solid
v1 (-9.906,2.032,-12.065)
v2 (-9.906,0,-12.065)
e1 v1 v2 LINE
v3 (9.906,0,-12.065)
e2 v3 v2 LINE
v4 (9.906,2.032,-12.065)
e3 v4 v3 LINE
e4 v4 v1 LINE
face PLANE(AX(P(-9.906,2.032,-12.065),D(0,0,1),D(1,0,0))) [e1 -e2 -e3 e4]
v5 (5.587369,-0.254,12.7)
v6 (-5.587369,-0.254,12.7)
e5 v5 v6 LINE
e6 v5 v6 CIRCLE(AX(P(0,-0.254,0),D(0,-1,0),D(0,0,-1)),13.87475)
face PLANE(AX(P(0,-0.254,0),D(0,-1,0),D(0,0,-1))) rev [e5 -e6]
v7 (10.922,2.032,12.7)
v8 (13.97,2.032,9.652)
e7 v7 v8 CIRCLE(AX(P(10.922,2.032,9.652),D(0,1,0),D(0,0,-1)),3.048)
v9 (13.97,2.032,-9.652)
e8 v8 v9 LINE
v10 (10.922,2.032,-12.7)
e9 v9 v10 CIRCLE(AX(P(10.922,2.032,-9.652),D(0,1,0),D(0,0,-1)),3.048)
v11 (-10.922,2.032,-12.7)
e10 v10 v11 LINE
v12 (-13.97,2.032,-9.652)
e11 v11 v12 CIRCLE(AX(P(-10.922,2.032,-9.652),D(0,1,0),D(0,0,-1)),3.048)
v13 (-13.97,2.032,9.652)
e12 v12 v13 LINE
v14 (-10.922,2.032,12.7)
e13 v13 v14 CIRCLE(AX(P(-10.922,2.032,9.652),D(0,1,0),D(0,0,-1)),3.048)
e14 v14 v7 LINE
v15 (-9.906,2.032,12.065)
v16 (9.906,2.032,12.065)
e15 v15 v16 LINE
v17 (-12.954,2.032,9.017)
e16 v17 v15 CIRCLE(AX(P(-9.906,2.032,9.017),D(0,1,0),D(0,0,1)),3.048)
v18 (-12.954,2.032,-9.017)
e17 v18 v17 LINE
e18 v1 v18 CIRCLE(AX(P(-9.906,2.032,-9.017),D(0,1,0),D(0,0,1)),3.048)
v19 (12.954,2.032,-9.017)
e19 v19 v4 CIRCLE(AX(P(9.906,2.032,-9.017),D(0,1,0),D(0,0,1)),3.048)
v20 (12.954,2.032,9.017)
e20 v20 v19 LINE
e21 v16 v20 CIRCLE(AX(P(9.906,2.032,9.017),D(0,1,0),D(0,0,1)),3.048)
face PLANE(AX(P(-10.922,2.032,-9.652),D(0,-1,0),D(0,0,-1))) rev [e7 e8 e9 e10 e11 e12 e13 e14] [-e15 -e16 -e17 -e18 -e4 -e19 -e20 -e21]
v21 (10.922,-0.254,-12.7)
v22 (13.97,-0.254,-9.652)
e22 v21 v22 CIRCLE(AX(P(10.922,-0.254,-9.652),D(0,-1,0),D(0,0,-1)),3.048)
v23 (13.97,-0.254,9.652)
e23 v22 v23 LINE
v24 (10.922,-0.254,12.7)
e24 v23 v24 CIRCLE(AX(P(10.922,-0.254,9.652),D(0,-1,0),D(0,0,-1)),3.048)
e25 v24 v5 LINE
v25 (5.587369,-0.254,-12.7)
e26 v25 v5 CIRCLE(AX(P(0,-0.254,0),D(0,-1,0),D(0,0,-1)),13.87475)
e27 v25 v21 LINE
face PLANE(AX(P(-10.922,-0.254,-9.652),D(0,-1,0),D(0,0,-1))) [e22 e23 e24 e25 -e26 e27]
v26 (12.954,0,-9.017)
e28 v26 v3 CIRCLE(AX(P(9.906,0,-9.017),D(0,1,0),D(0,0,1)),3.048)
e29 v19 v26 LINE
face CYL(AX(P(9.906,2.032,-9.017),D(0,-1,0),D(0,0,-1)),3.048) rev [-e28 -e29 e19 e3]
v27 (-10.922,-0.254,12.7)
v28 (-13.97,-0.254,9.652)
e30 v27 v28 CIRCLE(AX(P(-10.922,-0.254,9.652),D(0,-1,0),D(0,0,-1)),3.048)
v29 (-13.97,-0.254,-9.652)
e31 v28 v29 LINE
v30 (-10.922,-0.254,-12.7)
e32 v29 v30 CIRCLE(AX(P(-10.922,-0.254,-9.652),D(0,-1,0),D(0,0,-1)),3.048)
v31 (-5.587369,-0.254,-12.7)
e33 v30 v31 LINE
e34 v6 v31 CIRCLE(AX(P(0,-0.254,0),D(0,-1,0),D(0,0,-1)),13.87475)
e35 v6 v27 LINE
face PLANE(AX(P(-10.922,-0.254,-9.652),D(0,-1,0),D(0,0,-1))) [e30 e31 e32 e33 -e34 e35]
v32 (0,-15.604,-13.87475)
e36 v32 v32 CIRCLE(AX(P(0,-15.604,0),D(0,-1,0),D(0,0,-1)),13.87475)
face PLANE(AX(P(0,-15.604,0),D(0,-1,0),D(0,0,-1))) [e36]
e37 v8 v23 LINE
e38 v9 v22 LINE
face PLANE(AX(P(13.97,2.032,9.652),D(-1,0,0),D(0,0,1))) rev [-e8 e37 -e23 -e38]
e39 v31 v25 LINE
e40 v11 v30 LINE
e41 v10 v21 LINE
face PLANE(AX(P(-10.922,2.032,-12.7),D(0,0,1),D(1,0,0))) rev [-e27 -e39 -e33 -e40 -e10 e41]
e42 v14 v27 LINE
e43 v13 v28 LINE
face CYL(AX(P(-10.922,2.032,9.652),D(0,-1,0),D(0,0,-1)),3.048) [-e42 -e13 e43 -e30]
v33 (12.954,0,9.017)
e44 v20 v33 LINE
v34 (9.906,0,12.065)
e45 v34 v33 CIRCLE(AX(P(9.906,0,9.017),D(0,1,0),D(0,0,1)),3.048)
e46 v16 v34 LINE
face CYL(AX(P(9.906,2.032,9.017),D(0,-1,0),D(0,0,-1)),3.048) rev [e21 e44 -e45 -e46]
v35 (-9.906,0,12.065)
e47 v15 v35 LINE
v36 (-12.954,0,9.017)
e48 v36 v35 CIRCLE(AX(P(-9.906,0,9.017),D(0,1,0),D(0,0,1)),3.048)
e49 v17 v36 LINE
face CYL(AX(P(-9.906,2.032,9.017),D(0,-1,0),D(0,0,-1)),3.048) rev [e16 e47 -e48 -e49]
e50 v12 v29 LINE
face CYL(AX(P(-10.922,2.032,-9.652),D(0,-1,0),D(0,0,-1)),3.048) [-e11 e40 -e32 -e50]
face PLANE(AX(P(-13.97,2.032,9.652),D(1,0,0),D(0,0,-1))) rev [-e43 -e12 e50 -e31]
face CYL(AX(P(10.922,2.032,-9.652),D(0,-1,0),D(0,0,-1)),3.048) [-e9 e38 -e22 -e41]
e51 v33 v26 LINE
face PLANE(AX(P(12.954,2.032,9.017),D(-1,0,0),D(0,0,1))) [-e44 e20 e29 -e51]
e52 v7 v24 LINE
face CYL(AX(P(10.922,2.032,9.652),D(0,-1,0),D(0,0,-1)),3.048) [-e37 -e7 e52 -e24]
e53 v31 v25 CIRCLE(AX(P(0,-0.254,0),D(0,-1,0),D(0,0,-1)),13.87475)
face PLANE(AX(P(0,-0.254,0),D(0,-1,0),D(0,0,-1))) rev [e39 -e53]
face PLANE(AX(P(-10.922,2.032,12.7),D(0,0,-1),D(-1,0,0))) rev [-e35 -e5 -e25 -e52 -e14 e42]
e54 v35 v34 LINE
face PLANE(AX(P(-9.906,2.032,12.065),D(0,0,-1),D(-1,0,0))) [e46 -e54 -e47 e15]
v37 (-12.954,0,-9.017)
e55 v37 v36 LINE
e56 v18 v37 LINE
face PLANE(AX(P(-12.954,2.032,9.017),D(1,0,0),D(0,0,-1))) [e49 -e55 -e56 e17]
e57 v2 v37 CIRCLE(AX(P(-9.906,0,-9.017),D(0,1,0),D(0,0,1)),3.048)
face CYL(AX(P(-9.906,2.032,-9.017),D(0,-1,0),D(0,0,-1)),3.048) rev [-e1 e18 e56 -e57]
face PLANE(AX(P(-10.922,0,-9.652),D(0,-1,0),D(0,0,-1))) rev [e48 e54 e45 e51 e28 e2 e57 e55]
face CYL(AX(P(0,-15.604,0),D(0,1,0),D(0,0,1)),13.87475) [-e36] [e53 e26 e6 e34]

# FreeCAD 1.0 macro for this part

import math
import FreeCAD as App
import Part
import Sketcher
from FreeCAD import Vector
Q = App.Units.Quantity

doc = App.newDocument("Part")
body = doc.addObject("PartDesign::Body", "Body")

# Sketch on XZ plane
sketch1 = body.newObject("Sketcher::SketchObject", "Sketch")
sketch1.AttachmentSupport = (doc.getObject("XZ_Plane"), [""])
sketch1.MapMode = "FlatFace"
sketch1.addGeometry(Part.LineSegment(Vector(-10.922, 12.7, 0), Vector(10.922, 12.7, 0)), False)
sketch1.addGeometry(Part.ArcOfCircle(Part.Circle(Vector(10.922, 9.652, 0), Vector(0, 0, 1), 3.048), math.radians(0), math.radians(90)), False)
sketch1.addGeometry(Part.LineSegment(Vector(13.97, 9.652, 0), Vector(13.97, -9.652, 0)), False)
sketch1.addGeometry(Part.ArcOfCircle(Part.Circle(Vector(10.922, -9.652, 0), Vector(0, 0, 1), 3.048), math.radians(-90), math.radians(0)), False)
sketch1.addGeometry(Part.LineSegment(Vector(10.922, -12.7, 0), Vector(-10.922, -12.7, 0)), False)
sketch1.addGeometry(Part.ArcOfCircle(Part.Circle(Vector(-10.922, -9.652, 0), Vector(0, 0, 1), 3.048), math.radians(180), math.radians(270)), False)
sketch1.addGeometry(Part.LineSegment(Vector(-13.97, -9.652, 0), Vector(-13.97, 9.652, 0)), False)
sketch1.addGeometry(Part.ArcOfCircle(Part.Circle(Vector(-10.922, 9.652, 0), Vector(0, 0, 1), 3.048), math.radians(90), math.radians(180)), False)
sketch1.addGeometry(Part.LineSegment(Vector(9.906, 12.065, 0), Vector(-9.906, 12.065, 0)), False)
sketch1.addGeometry(Part.ArcOfCircle(Part.Circle(Vector(-9.906, 9.017, 0), Vector(0, 0, 1), 3.048), math.radians(90), math.radians(180)), False)
sketch1.addGeometry(Part.LineSegment(Vector(-12.954, 9.017, 0), Vector(-12.954, -9.017, 0)), False)
sketch1.addGeometry(Part.ArcOfCircle(Part.Circle(Vector(-9.906, -9.017, 0), Vector(0, 0, 1), 3.048), math.radians(180), math.radians(270)), False)
sketch1.addGeometry(Part.LineSegment(Vector(-9.906, -12.065, 0), Vector(9.906, -12.065, 0)), False)
sketch1.addGeometry(Part.ArcOfCircle(Part.Circle(Vector(9.906, -9.017, 0), Vector(0, 0, 1), 3.048), math.radians(-90), math.radians(0)), False)
sketch1.addGeometry(Part.LineSegment(Vector(12.954, -9.017, 0), Vector(12.954, 9.017, 0)), False)
sketch1.addGeometry(Part.ArcOfCircle(Part.Circle(Vector(9.906, 9.017, 0), Vector(0, 0, 1), 3.048), math.radians(0), math.radians(90)), False)
sketch1.addConstraint(Sketcher.Constraint("Tangent", 0, 2, 1, 2))
sketch1.addConstraint(Sketcher.Constraint("Tangent", 1, 1, 2, 1))
sketch1.addConstraint(Sketcher.Constraint("Tangent", 2, 2, 3, 2))
sketch1.addConstraint(Sketcher.Constraint("Tangent", 3, 1, 4, 1))
sketch1.addConstraint(Sketcher.Constraint("Tangent", 4, 2, 5, 2))
sketch1.addConstraint(Sketcher.Constraint("Tangent", 5, 1, 6, 1))
sketch1.addConstraint(Sketcher.Constraint("Tangent", 6, 2, 7, 2))
sketch1.addConstraint(Sketcher.Constraint("Tangent", 7, 1, 0, 1))
sketch1.addConstraint(Sketcher.Constraint("Tangent", 8, 2, 9, 1))
sketch1.addConstraint(Sketcher.Constraint("Tangent", 9, 2, 10, 1))
sketch1.addConstraint(Sketcher.Constraint("Tangent", 10, 2, 11, 1))
sketch1.addConstraint(Sketcher.Constraint("Tangent", 11, 2, 12, 1))
sketch1.addConstraint(Sketcher.Constraint("Tangent", 12, 2, 13, 1))
sketch1.addConstraint(Sketcher.Constraint("Tangent", 13, 2, 14, 1))
sketch1.addConstraint(Sketcher.Constraint("Tangent", 14, 2, 15, 1))
sketch1.addConstraint(Sketcher.Constraint("Tangent", 15, 2, 8, 1))
sketch1.addConstraint(Sketcher.Constraint("Horizontal", 0))
sketch1.addConstraint(Sketcher.Constraint("Vertical", 2))
sketch1.addConstraint(Sketcher.Constraint("Horizontal", 4))
sketch1.addConstraint(Sketcher.Constraint("Vertical", 6))
sketch1.addConstraint(Sketcher.Constraint("Horizontal", 8))
sketch1.addConstraint(Sketcher.Constraint("Vertical", 10))
sketch1.addConstraint(Sketcher.Constraint("Horizontal", 12))
sketch1.addConstraint(Sketcher.Constraint("Vertical", 14))
sketch1.addConstraint(Sketcher.Constraint("Equal", 1, 3))
sketch1.addConstraint(Sketcher.Constraint("Equal", 3, 5))
sketch1.addConstraint(Sketcher.Constraint("Equal", 5, 7))
sketch1.addConstraint(Sketcher.Constraint("Equal", 7, 9))
sketch1.addConstraint(Sketcher.Constraint("Equal", 9, 11))
sketch1.addConstraint(Sketcher.Constraint("Equal", 11, 13))
sketch1.addConstraint(Sketcher.Constraint("Equal", 13, 15))
sketch1.addConstraint(Sketcher.Constraint("Symmetric", 1, 3, 5, 3, -1, 1))
sketch1.addConstraint(Sketcher.Constraint("Symmetric", 9, 3, 13, 3, -1, 1))
sketch1.addConstraint(Sketcher.Constraint("Radius", 1, Q("0.12 in")))
sketch1.addConstraint(Sketcher.Constraint("DistanceX", 0, 1, 0, 2, Q("0.86 in")))
sketch1.addConstraint(Sketcher.Constraint("DistanceX", 8, 2, 8, 1, Q("0.78 in")))
sketch1.addConstraint(Sketcher.Constraint("DistanceY", 2, 2, 2, 1, Q("0.76 in")))
sketch1.addConstraint(Sketcher.Constraint("DistanceY", 10, 2, 10, 1, Q("0.71 in")))
pad1 = body.newObject("PartDesign::Pad", "Pad")
pad1.Profile = sketch1
pad1.Length = Q("0.08 in")
pad1.Reversed = True

# Sketch on XZ plane
sketch2 = body.newObject("Sketcher::SketchObject", "Sketch001")
sketch2.AttachmentSupport = (doc.getObject("XZ_Plane"), [""])
sketch2.MapMode = "FlatFace"
sketch2.addGeometry(Part.LineSegment(Vector(-10.922, -12.7, 0), Vector(10.922, -12.7, 0)), False)
sketch2.addGeometry(Part.ArcOfCircle(Part.Circle(Vector(10.922, -9.652, 0), Vector(0, 0, 1), 3.048), math.radians(-90), math.radians(0)), False)
sketch2.addGeometry(Part.LineSegment(Vector(13.97, -9.652, 0), Vector(13.97, 9.652, 0)), False)
sketch2.addGeometry(Part.ArcOfCircle(Part.Circle(Vector(10.922, 9.652, 0), Vector(0, 0, 1), 3.048), math.radians(0), math.radians(90)), False)
sketch2.addGeometry(Part.LineSegment(Vector(10.922, 12.7, 0), Vector(-10.922, 12.7, 0)), False)
sketch2.addGeometry(Part.ArcOfCircle(Part.Circle(Vector(-10.922, 9.652, 0), Vector(0, 0, 1), 3.048), math.radians(90), math.radians(180)), False)
sketch2.addGeometry(Part.LineSegment(Vector(-13.97, 9.652, 0), Vector(-13.97, -9.652, 0)), False)
sketch2.addGeometry(Part.ArcOfCircle(Part.Circle(Vector(-10.922, -9.652, 0), Vector(0, 0, 1), 3.048), math.radians(180), math.radians(270)), False)
sketch2.addConstraint(Sketcher.Constraint("Tangent", 0, 2, 1, 1))
sketch2.addConstraint(Sketcher.Constraint("Tangent", 1, 2, 2, 1))
sketch2.addConstraint(Sketcher.Constraint("Tangent", 2, 2, 3, 1))
sketch2.addConstraint(Sketcher.Constraint("Tangent", 3, 2, 4, 1))
sketch2.addConstraint(Sketcher.Constraint("Tangent", 4, 2, 5, 1))
sketch2.addConstraint(Sketcher.Constraint("Tangent", 5, 2, 6, 1))
sketch2.addConstraint(Sketcher.Constraint("Tangent", 6, 2, 7, 1))
sketch2.addConstraint(Sketcher.Constraint("Tangent", 7, 2, 0, 1))
sketch2.addConstraint(Sketcher.Constraint("Horizontal", 0))
sketch2.addConstraint(Sketcher.Constraint("Vertical", 2))
sketch2.addConstraint(Sketcher.Constraint("Horizontal", 4))
sketch2.addConstraint(Sketcher.Constraint("Vertical", 6))
sketch2.addConstraint(Sketcher.Constraint("Equal", 1, 3))
sketch2.addConstraint(Sketcher.Constraint("Equal", 3, 5))
sketch2.addConstraint(Sketcher.Constraint("Equal", 5, 7))
sketch2.addConstraint(Sketcher.Constraint("Symmetric", 1, 3, 5, 3, -1, 1))
sketch2.addConstraint(Sketcher.Constraint("Radius", 1, Q("0.12 in")))
sketch2.addConstraint(Sketcher.Constraint("DistanceX", 0, 1, 0, 2, Q("0.86 in")))
sketch2.addConstraint(Sketcher.Constraint("DistanceY", 2, 1, 2, 2, Q("0.76 in")))
pad2 = body.newObject("PartDesign::Pad", "Pad001")
pad2.Profile = sketch2
pad2.Length = Q("0.01 in")

# Sketch on XZ plane
sketch3 = body.newObject("Sketcher::SketchObject", "Sketch002")
sketch3.AttachmentSupport = (doc.getObject("XZ_Plane"), [""])
sketch3.MapMode = "FlatFace"
sketch3.AttachmentOffset = App.Placement(Vector(0, 0, 0.01 * 25.4), App.Rotation())
sketch3.addGeometry(Part.Circle(Vector(0, 0, 0), Vector(0, 0, 1), 13.87475), False)
sketch3.addConstraint(Sketcher.Constraint("Coincident", 0, 3, -1, 1))
sketch3.addConstraint(Sketcher.Constraint("Diameter", 0, Q("1.0925 in")))
pad3 = body.newObject("PartDesign::Pad", "Pad002")
pad3.Profile = sketch3
pad3.Length = 15.35

doc.recompute()
